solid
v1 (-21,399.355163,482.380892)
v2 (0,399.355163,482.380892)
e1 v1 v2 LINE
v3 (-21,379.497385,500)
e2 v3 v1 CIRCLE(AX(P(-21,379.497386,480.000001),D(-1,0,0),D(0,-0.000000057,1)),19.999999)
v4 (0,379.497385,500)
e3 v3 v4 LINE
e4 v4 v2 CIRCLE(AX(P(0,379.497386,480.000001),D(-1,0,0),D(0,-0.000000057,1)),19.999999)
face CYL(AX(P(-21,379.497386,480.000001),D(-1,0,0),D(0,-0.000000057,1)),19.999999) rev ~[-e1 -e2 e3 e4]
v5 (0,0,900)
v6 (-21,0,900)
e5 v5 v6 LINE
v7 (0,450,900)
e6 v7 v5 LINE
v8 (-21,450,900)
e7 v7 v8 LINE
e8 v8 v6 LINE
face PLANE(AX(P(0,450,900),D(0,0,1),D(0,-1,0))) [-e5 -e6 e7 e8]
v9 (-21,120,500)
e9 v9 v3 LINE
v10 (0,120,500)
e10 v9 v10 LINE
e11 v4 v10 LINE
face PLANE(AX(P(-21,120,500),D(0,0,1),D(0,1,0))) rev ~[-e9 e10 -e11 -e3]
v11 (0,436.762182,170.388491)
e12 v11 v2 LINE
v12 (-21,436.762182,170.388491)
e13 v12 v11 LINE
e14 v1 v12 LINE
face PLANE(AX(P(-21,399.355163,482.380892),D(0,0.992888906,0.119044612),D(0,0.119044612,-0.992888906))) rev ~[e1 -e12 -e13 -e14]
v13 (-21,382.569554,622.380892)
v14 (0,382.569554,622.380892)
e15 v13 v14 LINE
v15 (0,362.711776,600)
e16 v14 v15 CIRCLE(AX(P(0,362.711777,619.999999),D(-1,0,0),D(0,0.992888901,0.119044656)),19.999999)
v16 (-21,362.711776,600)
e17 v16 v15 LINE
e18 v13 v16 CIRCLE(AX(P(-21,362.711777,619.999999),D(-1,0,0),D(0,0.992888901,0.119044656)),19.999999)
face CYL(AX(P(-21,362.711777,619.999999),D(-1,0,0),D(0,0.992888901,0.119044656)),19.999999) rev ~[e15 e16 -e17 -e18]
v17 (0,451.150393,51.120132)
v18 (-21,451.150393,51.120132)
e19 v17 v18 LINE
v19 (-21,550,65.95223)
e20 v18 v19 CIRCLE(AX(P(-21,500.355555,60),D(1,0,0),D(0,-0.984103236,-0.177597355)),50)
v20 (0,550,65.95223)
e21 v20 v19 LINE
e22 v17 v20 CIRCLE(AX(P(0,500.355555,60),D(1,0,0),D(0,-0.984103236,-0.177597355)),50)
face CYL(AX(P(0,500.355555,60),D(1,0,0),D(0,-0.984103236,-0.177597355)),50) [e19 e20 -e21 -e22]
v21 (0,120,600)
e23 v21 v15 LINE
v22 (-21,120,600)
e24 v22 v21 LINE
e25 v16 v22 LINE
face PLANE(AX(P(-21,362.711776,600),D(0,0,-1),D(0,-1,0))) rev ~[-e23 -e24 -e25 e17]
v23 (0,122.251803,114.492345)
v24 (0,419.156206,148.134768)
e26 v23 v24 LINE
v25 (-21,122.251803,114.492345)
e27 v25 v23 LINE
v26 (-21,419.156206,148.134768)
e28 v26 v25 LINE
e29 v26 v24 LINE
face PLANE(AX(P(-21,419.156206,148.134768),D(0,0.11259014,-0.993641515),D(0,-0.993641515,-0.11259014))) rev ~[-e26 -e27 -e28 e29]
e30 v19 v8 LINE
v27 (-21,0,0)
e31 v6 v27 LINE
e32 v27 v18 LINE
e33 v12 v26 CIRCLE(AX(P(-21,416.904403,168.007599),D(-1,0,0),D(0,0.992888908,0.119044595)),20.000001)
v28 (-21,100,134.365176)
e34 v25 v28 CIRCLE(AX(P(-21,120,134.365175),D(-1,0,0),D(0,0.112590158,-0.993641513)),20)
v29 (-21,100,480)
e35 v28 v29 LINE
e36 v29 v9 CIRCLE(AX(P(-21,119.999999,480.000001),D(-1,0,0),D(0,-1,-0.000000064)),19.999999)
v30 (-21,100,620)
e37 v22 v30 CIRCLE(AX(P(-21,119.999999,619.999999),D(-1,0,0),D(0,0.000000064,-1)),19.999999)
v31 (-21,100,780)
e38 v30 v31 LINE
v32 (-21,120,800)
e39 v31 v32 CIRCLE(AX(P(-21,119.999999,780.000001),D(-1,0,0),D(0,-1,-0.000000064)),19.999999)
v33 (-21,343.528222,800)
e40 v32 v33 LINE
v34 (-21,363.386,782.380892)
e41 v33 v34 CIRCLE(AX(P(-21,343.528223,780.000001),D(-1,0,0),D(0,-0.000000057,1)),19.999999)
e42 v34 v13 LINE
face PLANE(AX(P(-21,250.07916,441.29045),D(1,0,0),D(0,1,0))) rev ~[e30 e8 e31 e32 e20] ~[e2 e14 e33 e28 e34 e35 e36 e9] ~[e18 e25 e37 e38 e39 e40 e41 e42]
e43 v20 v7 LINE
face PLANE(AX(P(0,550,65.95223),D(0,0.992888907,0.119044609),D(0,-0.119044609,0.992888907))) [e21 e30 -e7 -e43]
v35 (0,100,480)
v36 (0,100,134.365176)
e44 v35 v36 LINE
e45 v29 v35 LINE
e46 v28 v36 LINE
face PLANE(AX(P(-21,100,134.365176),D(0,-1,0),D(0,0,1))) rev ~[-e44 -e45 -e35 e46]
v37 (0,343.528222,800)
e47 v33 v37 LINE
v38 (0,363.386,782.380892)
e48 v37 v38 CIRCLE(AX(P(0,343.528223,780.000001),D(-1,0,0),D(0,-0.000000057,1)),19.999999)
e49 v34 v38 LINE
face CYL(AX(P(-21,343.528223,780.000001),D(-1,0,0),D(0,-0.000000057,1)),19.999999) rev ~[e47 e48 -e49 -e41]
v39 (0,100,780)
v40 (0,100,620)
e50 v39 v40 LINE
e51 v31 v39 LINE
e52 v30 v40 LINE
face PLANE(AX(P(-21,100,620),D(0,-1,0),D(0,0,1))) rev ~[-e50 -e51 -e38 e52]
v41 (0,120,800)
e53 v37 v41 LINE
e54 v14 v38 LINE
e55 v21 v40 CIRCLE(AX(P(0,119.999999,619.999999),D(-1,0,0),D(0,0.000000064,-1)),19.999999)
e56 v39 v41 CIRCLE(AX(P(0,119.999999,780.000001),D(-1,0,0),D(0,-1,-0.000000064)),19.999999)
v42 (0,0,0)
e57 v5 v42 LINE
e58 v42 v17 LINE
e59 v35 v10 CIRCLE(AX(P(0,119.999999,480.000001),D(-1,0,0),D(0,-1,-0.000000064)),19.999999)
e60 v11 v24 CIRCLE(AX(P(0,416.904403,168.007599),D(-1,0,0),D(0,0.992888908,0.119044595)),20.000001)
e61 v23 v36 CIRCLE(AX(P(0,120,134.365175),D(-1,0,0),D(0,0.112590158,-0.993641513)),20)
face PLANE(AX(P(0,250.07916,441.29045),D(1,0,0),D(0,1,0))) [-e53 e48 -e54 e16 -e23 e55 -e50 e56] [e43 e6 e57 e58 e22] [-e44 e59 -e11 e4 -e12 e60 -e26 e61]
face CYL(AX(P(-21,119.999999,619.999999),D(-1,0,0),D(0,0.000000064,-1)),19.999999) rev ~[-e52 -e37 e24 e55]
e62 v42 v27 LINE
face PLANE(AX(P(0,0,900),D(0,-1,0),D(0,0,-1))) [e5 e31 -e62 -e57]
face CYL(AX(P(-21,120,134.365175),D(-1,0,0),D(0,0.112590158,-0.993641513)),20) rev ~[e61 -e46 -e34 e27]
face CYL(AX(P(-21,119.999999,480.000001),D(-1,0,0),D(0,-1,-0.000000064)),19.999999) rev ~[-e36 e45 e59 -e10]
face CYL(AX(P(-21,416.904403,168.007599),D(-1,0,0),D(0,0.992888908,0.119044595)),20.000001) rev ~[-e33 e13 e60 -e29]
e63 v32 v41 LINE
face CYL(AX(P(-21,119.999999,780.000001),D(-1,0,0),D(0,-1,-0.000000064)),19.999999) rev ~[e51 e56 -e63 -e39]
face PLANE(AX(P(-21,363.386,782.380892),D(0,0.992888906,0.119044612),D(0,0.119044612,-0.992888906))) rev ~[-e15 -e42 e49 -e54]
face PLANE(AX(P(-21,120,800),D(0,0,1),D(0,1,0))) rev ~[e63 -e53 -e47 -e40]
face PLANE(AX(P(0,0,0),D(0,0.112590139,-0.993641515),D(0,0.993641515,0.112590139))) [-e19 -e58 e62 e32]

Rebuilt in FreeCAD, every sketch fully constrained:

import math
import FreeCAD as App
import Part
import Sketcher
from FreeCAD import Vector

doc = App.newDocument("Part")
body = doc.addObject("PartDesign::Body", "Body")

sketch1 = body.newObject("Sketcher::SketchObject", "Sketch")
sketch1.AttachmentSupport = (doc.getObject("YZ_Plane"), [""])
sketch1.MapMode = "FlatFace"
sketch1.addGeometry([
    Part.LineSegment(Vector(0, 900, 0), Vector(0, 0, 0)),
    Part.LineSegment(Vector(0, 0, 0), Vector(451, 51, 0)),
    Part.ArcOfCircle(Part.Circle(Vector(500, 60, 0), Vector(0, 0, 1), 50), math.radians(-170), math.radians(7)),
    Part.LineSegment(Vector(550, 66, 0), Vector(450, 900, 0)),
    Part.LineSegment(Vector(450, 900, 0), Vector(0, 900, 0)),
], False)
sketch1.addConstraint([
    Sketcher.Constraint("Coincident", 0, 2, 1, 1),
    Sketcher.Constraint("Coincident", 1, 2, 2, 1),
    Sketcher.Constraint("Tangent", 2, 2, 3, 1),
    Sketcher.Constraint("Coincident", 3, 2, 4, 1),
    Sketcher.Constraint("Coincident", 4, 2, 0, 1),
    Sketcher.Constraint("Vertical", 0),
    Sketcher.Constraint("Horizontal", 4),
    Sketcher.Constraint("Coincident", 0, 2, -1, 1),
    Sketcher.Constraint("Radius", 2, 50.0),
    Sketcher.Constraint("DistanceX", 4, 2, 4, 1, 450.0),
    Sketcher.Constraint("DistanceY", 0, 2, 0, 1, 900.0),
    Sketcher.Constraint("DistanceY", -1, 1, 2, 3, 60.0),
    Sketcher.Constraint("DistanceX", -1, 1, 2, 2, 550.0),
    Sketcher.Constraint("DistanceY", 1, 2, 2, 2, 14.832098),
])
pad1 = body.newObject("PartDesign::Pad", "Pad")
pad1.Profile = sketch1
pad1.Length = 21
pad1.Reversed = True

sketch2 = body.newObject("Sketcher::SketchObject", "Sketch001")
sketch2.AttachmentSupport = (doc.getObject("YZ_Plane"), [""])
sketch2.MapMode = "FlatFace"
sketch2.AttachmentOffset = App.Placement(Vector(0, 0, -21), App.Rotation())
sketch2.addGeometry([
    Part.ArcOfCircle(Part.Circle(Vector(119.999999, 780.000001, 0), Vector(0, 0, 1), 19.999999), math.radians(89.999996), math.radians(180.000004)),
    Part.LineSegment(Vector(120, 800, 0), Vector(343.528222, 800, 0)),
    Part.ArcOfCircle(Part.Circle(Vector(343.528223, 780.000001, 0), Vector(0, 0, 1), 19.999999), math.radians(6.836963), math.radians(90.000003)),
    Part.LineSegment(Vector(363.386, 782.380892, 0), Vector(382.569554, 622.380892, 0)),
    Part.ArcOfCircle(Part.Circle(Vector(362.711777, 619.999999, 0), Vector(0, 0, 1), 19.999999), math.radians(-90.000003), math.radians(6.83697)),
    Part.LineSegment(Vector(362.711776, 600, 0), Vector(120, 600, 0)),
    Part.ArcOfCircle(Part.Circle(Vector(119.999999, 619.999999, 0), Vector(0, 0, 1), 19.999999), math.radians(179.999996), math.radians(270.000004)),
    Part.LineSegment(Vector(100, 620, 0), Vector(100, 780, 0)),
    Part.LineSegment(Vector(100, 134.365176, 0), Vector(100, 480, 0)),
    Part.ArcOfCircle(Part.Circle(Vector(119.999999, 480.000001, 0), Vector(0, 0, 1), 19.999999), math.radians(89.999996), math.radians(180.000004)),
    Part.LineSegment(Vector(120, 500, 0), Vector(379.497385, 500, 0)),
    Part.ArcOfCircle(Part.Circle(Vector(379.497386, 480.000001, 0), Vector(0, 0, 1), 19.999999), math.radians(6.836963), math.radians(90.000003)),
    Part.LineSegment(Vector(399.355163, 482.380892, 0), Vector(436.762182, 170.388491, 0)),
    Part.ArcOfCircle(Part.Circle(Vector(416.904403, 168.007599, 0), Vector(0, 0, 1), 20.000001), math.radians(-83.535353), math.radians(6.836967)),
    Part.LineSegment(Vector(419.156206, 148.134768, 0), Vector(122.251803, 114.492345, 0)),
    Part.ArcOfCircle(Part.Circle(Vector(120, 134.365175, 0), Vector(0, 0, 1), 20), math.radians(179.999997), math.radians(276.464649)),
], False)
sketch2.addConstraint([
    Sketcher.Constraint("Coincident", 0, 1, 1, 1),
    Sketcher.Constraint("Coincident", 1, 2, 2, 2),
    Sketcher.Constraint("Coincident", 2, 1, 3, 1),
    Sketcher.Constraint("Coincident", 3, 2, 4, 2),
    Sketcher.Constraint("Coincident", 4, 1, 5, 1),
    Sketcher.Constraint("Coincident", 5, 2, 6, 2),
    Sketcher.Constraint("Coincident", 6, 1, 7, 1),
    Sketcher.Constraint("Coincident", 7, 2, 0, 2),
    Sketcher.Constraint("Coincident", 8, 2, 9, 2),
    Sketcher.Constraint("Coincident", 9, 1, 10, 1),
    Sketcher.Constraint("Coincident", 10, 2, 11, 2),
    Sketcher.Constraint("Coincident", 11, 1, 12, 1),
    Sketcher.Constraint("Coincident", 12, 2, 13, 2),
    Sketcher.Constraint("Coincident", 13, 1, 14, 1),
    Sketcher.Constraint("Coincident", 14, 2, 15, 2),
    Sketcher.Constraint("Coincident", 15, 1, 8, 1),
    Sketcher.Constraint("Horizontal", 1),
    Sketcher.Constraint("Horizontal", 5),
    Sketcher.Constraint("Vertical", 7),
    Sketcher.Constraint("Vertical", 8),
    Sketcher.Constraint("Horizontal", 10),
    Sketcher.Constraint("Radius", 0, 19.999999),
    Sketcher.Constraint("Radius", 2, 19.999999),
    Sketcher.Constraint("Radius", 4, 19.999999),
    Sketcher.Constraint("Radius", 6, 19.999999),
    Sketcher.Constraint("Radius", 9, 19.999999),
    Sketcher.Constraint("Radius", 11, 19.999999),
    Sketcher.Constraint("Radius", 13, 20.000001),
    Sketcher.Constraint("Radius", 15, 20.0),
    Sketcher.Constraint("DistanceY", 7, 1, 7, 2, 160.0),
    Sketcher.Constraint("DistanceX", -1, 1, 0, 3, 119.999999),
    Sketcher.Constraint("DistanceY", -1, 1, 0, 3, 780.000001),
    Sketcher.Constraint("DistanceY", -1, 1, 4, 3, 619.999999),
    Sketcher.Constraint("DistanceX", -1, 1, 9, 3, 119.999999),
    Sketcher.Constraint("DistanceY", -1, 1, 9, 3, 480.000001),
    Sketcher.Constraint("DistanceX", -1, 1, 0, 1, 120.0),
    Sketcher.Constraint("DistanceX", -1, 1, 5, 2, 120.0),
    Sketcher.Constraint("DistanceY", -1, 1, 6, 1, 620.0),
    Sketcher.Constraint("DistanceY", -1, 1, 8, 2, 480.0),
    Sketcher.Constraint("DistanceX", -1, 1, 9, 1, 120.0),
    Sketcher.Constraint("DistanceY", 3, 2, 2, 1, 160.0),
    Sketcher.Constraint("DistanceY", 11, 1, 3, 2, 140.0),
    Sketcher.Constraint("DistanceX", -1, 1, 2, 1, 363.386),
    Sketcher.Constraint("DistanceY", -1, 1, 13, 3, 168.007599),
    Sketcher.Constraint("DistanceY", 12, 2, 11, 1, 311.992401),
    Sketcher.Constraint("DistanceX", 14, 2, 13, 3, 294.6526),
    Sketcher.Constraint("DistanceX", 1, 1, 1, 2, 223.528222),
    Sketcher.Constraint("DistanceX", 5, 2, 5, 1, 242.711776),
    Sketcher.Constraint("DistanceX", 10, 1, 10, 2, 259.497385),
    Sketcher.Constraint("DistanceY", 8, 1, 8, 2, 345.634824),
    Sketcher.Constraint("DistanceY", -1, 1, 2, 1, 782.380892),
    Sketcher.Constraint("DistanceX", -1, 1, 12, 2, 436.762182),
    Sketcher.Constraint("DistanceX", 0, 3, 4, 3, 242.711778),
    Sketcher.Constraint("DistanceX", 4, 3, 11, 3, 16.785609),
    Sketcher.Constraint("DistanceY", 13, 1, 13, 3, 19.872831),
    Sketcher.Constraint("DistanceY", 14, 2, 15, 1, 19.872831),
])
pocket1 = body.newObject("PartDesign::Pocket", "Pocket")
pocket1.Profile = sketch2
pocket1.Length = 25
pocket1.Reversed = True

doc.recompute()
